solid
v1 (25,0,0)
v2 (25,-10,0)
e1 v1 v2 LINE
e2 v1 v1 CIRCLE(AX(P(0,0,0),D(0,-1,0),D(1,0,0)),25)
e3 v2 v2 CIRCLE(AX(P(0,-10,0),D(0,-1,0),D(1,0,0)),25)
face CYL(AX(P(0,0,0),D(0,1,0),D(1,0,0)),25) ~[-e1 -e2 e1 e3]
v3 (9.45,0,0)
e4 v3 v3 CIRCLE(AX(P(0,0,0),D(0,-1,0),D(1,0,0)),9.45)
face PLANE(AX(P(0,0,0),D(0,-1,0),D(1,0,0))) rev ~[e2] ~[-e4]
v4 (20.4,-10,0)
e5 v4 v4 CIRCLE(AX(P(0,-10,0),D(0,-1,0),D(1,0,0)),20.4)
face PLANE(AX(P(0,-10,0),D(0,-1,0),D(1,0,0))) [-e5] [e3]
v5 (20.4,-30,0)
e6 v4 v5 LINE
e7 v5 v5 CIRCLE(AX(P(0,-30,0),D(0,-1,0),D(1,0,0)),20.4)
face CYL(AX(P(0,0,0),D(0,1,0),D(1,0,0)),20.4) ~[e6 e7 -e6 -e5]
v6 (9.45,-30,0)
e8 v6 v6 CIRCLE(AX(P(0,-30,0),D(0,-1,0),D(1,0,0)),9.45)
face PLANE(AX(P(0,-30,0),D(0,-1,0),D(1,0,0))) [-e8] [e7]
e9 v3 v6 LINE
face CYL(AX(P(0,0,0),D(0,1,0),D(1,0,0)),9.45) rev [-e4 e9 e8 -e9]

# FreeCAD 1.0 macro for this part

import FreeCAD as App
import Part
import Sketcher

doc = App.newDocument("Part")
body = doc.addObject("PartDesign::Body", "Body")

sketch1 = doc.addObject("Sketcher::SketchObject", "Sketch")
body.addObject(sketch1)
sketch1.AttachmentSupport = (doc.XZ_Plane, [""])
sketch1.MapMode = "FlatFace"
sketch1.addGeometry([
    Part.Circle(App.Vector(0, 0, 0), App.Vector(0, 0, 1), 20),
    Part.Circle(App.Vector(0, 0, 0), App.Vector(0, 0, 1), 9),
], False)
sketch1.addConstraint([
    Sketcher.Constraint("Coincident", 0, 3, -1, 1),
    Sketcher.Constraint("Coincident", 1, 3, -1, 1),
    Sketcher.Constraint("Diameter", 0, 40.8),
    Sketcher.Constraint("Diameter", 1, 18.9),
])
pad1 = doc.addObject("PartDesign::Pad", "Pad")
body.addObject(pad1)
pad1.Profile = sketch1
pad1.Length = 30

sketch2 = doc.addObject("Sketcher::SketchObject", "Sketch001")
body.addObject(sketch2)
sketch2.AttachmentSupport = (doc.XZ_Plane, [""])
sketch2.MapMode = "FlatFace"
sketch2.addGeometry([
    Part.Circle(App.Vector(0, 0, 0), App.Vector(0, 0, 1), 25),
    Part.Circle(App.Vector(0, 0, 0), App.Vector(0, 0, 1), 20),
], False)
sketch2.addConstraint([
    Sketcher.Constraint("Coincident", 0, 3, -1, 1),
    Sketcher.Constraint("Coincident", 1, 3, -1, 1),
    Sketcher.Constraint("Diameter", 0, 50.0),
    Sketcher.Constraint("Diameter", 1, 40.8),
])
pad2 = doc.addObject("PartDesign::Pad", "Pad001")
body.addObject(pad2)
pad2.Profile = sketch2
pad2.Length = 10

doc.recompute()
